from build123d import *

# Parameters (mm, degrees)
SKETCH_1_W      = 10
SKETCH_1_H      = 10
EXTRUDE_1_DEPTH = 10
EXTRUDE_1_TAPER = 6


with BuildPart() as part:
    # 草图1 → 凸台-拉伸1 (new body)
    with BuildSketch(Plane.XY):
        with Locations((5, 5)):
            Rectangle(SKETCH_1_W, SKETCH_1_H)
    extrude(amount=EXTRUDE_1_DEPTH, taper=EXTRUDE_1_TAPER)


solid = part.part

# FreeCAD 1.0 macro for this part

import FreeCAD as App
import Part
import Sketcher
from FreeCAD import Vector


def add_polygon(sketch, points):
    """Adds a closed chain of lines whose ends are joined by coincident constraints."""
    first, n = sketch.GeometryCount, len(points)
    for a, b in zip(points, points[1:] + points[:1]):
        sketch.addGeometry(Part.LineSegment(App.Vector(*a, 0), App.Vector(*b, 0)), False)
    for i in range(n):
        sketch.addConstraint(Sketcher.Constraint("Coincident", first + i, 2, first + (i + 1) % n, 1))

doc = App.newDocument("Part")
body = doc.addObject("PartDesign::Body", "Body")

# Sketch on XY plane
sketch1 = body.newObject("Sketcher::SketchObject", "Sketch")
sketch1.AttachmentSupport = (doc.getObject("XY_Plane"), [""])
sketch1.MapMode = "FlatFace"
add_polygon(sketch1, [(0, 10), (0, 0), (10, 0), (10, 10)])  # lines 0-3
sketch1.addConstraint([
    Sketcher.Constraint("Vertical", 0),
    Sketcher.Constraint("Horizontal", 1),
    Sketcher.Constraint("Vertical", 2),
    Sketcher.Constraint("Horizontal", 3),
    Sketcher.Constraint("Coincident", 0, 2, -1, 1),
    Sketcher.Constraint("Equal", 3, 0),
    Sketcher.Constraint("DistanceX", 1, 1, 1, 2, 10.0),
])
pad1 = body.newObject("PartDesign::Pad", "Pad")
pad1.Profile = sketch1
pad1.Length = 10
pad1.TaperAngle = -6

doc.recompute()
